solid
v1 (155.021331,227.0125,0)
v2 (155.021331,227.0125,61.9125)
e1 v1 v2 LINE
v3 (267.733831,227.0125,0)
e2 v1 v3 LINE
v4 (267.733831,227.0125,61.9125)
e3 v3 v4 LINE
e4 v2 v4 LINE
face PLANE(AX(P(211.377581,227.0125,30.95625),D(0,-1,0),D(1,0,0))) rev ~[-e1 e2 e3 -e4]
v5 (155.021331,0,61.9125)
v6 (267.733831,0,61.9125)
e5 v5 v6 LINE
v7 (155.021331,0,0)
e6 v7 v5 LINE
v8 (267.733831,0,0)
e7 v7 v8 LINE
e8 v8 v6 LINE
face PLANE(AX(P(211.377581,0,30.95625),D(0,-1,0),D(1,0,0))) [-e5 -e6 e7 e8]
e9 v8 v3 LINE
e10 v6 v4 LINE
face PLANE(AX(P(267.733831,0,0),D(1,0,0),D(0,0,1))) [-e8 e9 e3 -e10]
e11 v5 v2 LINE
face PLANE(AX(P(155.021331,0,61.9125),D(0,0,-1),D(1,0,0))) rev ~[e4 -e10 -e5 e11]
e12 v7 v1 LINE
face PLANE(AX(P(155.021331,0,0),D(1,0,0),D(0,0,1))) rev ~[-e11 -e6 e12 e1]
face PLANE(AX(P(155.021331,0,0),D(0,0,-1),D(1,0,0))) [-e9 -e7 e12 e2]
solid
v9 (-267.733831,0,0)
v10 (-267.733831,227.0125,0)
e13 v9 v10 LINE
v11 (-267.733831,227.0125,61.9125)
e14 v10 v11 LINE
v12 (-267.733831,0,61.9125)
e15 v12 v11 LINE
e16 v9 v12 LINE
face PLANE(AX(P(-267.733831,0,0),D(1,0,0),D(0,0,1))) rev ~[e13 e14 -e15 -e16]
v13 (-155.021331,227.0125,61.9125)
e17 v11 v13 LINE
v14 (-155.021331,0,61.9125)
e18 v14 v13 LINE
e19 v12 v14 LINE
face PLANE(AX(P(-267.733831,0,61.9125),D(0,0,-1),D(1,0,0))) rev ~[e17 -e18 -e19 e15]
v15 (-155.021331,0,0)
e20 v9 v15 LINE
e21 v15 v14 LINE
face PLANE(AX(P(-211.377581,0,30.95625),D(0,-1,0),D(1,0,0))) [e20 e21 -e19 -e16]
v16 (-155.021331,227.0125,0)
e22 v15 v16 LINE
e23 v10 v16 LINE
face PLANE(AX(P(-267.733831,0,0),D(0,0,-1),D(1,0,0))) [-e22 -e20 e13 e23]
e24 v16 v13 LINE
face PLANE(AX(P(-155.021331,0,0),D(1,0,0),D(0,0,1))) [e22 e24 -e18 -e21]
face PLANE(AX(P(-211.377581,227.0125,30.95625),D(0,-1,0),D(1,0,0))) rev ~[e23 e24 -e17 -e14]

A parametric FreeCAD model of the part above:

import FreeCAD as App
import Part
import Sketcher

V = App.Vector
Q = App.Units.Quantity

doc = App.newDocument("Part")
body = doc.addObject("PartDesign::Body", "Body")
body.AllowCompound = True

# Sketch on XZ plane
sketch1 = doc.addObject("Sketcher::SketchObject", "Sketch")
body.addObject(sketch1)
sketch1.AttachmentSupport = (doc.XZ_Plane, [""])
sketch1.MapMode = "FlatFace"
sketch1.addGeometry([
    Part.LineSegment(V(155.021331, 61.9125, 0), V(155.021331, 0, 0)),  # 0
    Part.LineSegment(V(155.021331, 0, 0), V(267.733831, 0, 0)),  # 1
    Part.LineSegment(V(267.733831, 0, 0), V(267.733831, 61.9125, 0)),  # 2
    Part.LineSegment(V(267.733831, 61.9125, 0), V(155.021331, 61.9125, 0)),  # 3
    Part.LineSegment(V(-267.733831, 61.9125, 0), V(-267.733831, 0, 0)),  # 4
    Part.LineSegment(V(-267.733831, 0, 0), V(-155.021331, 0, 0)),  # 5
    Part.LineSegment(V(-155.021331, 0, 0), V(-155.021331, 61.9125, 0)),  # 6
    Part.LineSegment(V(-155.021331, 61.9125, 0), V(-267.733831, 61.9125, 0)),  # 7
], False)
sketch1.addConstraint([
    Sketcher.Constraint("Coincident", 0, 2, 1, 1),
    Sketcher.Constraint("Coincident", 1, 2, 2, 1),
    Sketcher.Constraint("Coincident", 2, 2, 3, 1),
    Sketcher.Constraint("Coincident", 3, 2, 0, 1),
    Sketcher.Constraint("Coincident", 4, 2, 5, 1),
    Sketcher.Constraint("Coincident", 5, 2, 6, 1),
    Sketcher.Constraint("Coincident", 6, 2, 7, 1),
    Sketcher.Constraint("Coincident", 7, 2, 4, 1),
    Sketcher.Constraint("Vertical", 0),
    Sketcher.Constraint("Horizontal", 1),
    Sketcher.Constraint("Vertical", 2),
    Sketcher.Constraint("Horizontal", 3),
    Sketcher.Constraint("Vertical", 4),
    Sketcher.Constraint("Horizontal", 5),
    Sketcher.Constraint("Vertical", 6),
    Sketcher.Constraint("Horizontal", 7),
    Sketcher.Constraint("Symmetric", 1, 2, 4, 2, -1, 1),
    Sketcher.Constraint("Symmetric", 0, 2, 5, 2, -2),
    Sketcher.Constraint("Horizontal", 3, 2, 6, 2),
    Sketcher.Constraint("DistanceX", 1, 1, 1, 2, Q("4.4375 in")),
    Sketcher.Constraint("DistanceY", 0, 2, 0, 1, Q("2.4375 in")),
    Sketcher.Constraint("DistanceX", -1, 1, 0, 2, 155.021331),
])
pad1 = doc.addObject("PartDesign::Pad", "Pad")
body.addObject(pad1)
pad1.Profile = sketch1
pad1.Length = Q("8.9375 in")
pad1.Reversed = True

doc.recompute()
